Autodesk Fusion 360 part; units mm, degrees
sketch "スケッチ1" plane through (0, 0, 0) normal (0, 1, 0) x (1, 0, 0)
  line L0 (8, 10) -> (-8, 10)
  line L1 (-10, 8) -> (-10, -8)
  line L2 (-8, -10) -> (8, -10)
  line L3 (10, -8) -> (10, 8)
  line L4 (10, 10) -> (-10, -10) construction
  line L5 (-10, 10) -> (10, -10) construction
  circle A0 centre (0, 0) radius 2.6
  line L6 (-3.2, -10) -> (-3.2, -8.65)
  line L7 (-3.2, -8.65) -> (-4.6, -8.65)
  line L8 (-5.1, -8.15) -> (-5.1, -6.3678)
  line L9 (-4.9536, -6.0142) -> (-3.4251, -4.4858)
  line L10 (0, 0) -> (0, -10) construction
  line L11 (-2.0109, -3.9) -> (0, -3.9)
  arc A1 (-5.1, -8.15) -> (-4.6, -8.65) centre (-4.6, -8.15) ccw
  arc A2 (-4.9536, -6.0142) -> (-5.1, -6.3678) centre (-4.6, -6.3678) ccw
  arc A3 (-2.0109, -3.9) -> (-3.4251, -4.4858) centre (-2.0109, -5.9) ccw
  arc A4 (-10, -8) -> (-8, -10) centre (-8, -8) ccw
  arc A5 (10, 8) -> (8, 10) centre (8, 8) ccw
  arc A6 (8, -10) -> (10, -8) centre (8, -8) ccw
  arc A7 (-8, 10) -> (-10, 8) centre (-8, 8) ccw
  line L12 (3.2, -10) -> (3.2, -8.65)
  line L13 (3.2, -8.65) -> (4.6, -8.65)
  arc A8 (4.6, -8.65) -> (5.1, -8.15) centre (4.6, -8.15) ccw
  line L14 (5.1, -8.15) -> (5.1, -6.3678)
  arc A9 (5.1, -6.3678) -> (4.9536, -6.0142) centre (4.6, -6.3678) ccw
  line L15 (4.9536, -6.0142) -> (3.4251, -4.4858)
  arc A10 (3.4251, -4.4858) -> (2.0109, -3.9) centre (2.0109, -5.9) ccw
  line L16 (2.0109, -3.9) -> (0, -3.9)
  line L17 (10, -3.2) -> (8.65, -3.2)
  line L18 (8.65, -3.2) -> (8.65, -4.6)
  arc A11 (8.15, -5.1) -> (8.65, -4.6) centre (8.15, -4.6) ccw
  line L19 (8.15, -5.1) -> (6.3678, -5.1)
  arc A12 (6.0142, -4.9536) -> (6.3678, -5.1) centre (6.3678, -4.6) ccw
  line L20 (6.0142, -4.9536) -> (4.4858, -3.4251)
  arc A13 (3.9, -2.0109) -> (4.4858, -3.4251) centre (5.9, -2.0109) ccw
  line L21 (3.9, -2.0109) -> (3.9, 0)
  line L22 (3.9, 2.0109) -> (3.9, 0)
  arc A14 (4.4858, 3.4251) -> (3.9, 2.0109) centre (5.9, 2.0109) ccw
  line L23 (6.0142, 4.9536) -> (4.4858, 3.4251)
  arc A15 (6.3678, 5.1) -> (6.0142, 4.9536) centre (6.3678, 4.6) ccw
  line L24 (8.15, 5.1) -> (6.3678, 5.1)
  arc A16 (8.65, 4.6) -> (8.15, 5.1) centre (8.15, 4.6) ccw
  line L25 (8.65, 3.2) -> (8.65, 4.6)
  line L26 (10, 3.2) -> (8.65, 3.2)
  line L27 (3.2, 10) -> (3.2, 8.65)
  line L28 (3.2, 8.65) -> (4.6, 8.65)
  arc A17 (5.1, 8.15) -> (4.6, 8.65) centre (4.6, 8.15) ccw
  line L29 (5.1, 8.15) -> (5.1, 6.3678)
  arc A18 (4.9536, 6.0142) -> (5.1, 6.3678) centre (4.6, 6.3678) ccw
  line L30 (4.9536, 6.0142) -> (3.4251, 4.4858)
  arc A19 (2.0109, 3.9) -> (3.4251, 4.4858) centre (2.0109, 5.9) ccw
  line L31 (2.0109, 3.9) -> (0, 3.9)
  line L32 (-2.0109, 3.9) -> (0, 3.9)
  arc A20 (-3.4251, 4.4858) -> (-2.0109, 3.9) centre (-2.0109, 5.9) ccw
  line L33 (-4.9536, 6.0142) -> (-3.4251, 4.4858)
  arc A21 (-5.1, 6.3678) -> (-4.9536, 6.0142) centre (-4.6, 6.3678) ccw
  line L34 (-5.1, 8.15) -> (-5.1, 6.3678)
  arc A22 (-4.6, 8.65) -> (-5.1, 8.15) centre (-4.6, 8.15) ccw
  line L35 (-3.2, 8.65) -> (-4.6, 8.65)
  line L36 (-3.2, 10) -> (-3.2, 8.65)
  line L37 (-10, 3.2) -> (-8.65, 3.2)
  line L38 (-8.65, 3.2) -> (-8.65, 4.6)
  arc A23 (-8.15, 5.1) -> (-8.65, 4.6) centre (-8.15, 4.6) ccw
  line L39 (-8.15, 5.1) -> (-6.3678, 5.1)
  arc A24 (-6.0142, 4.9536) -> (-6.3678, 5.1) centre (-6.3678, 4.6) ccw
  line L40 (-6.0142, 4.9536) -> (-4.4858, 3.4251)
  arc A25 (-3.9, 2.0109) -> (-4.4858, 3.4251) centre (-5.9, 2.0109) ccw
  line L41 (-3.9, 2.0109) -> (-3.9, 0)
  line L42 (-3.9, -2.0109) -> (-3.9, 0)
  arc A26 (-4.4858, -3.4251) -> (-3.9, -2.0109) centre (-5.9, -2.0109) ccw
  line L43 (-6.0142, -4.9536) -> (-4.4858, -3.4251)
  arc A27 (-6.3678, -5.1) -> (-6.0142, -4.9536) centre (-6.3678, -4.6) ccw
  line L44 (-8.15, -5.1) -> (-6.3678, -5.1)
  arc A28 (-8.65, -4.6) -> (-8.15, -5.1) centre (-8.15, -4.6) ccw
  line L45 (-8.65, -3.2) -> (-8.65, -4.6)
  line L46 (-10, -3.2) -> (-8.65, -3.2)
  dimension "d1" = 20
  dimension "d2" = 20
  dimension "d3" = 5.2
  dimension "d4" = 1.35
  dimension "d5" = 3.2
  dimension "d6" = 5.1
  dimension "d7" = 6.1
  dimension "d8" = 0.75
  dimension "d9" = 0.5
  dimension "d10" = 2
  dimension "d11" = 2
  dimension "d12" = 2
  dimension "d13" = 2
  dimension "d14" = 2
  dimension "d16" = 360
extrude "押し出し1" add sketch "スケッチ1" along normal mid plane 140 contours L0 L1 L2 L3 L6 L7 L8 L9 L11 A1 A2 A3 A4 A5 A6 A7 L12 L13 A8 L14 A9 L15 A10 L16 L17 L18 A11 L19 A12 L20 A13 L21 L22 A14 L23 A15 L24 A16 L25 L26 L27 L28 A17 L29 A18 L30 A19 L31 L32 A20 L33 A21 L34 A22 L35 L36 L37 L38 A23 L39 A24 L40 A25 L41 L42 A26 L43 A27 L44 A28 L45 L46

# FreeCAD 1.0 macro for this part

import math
import FreeCAD as App
import Part
import Sketcher
Q = App.Units.Quantity

doc = App.newDocument("Part")
body = doc.addObject("PartDesign::Body", "Body")

# Sketch on XZ plane
sketch1 = body.newObject("Sketcher::SketchObject", "Sketch")
sketch1.AttachmentSupport = (doc.getObject("XZ_Plane"), [""])
sketch1.MapMode = "FlatFace"
sketch1.addGeometry([
    Part.ArcOfCircle(Part.Circle(App.Vector(8, -8, 0), App.Vector(0, 0, 1), 2), math.radians(-90), math.radians(0)),  # 0
    Part.LineSegment(App.Vector(8, -10, 0), App.Vector(3.2, -10, 0)),  # 1
    Part.LineSegment(App.Vector(3.2, -10, 0), App.Vector(3.2, -8.65, 0)),  # 2
    Part.LineSegment(App.Vector(3.2, -8.65, 0), App.Vector(4.6, -8.65, 0)),  # 3
    Part.ArcOfCircle(Part.Circle(App.Vector(4.6, -8.15, 0), App.Vector(0, 0, 1), 0.5), math.radians(-90), math.radians(0)),  # 4
    Part.LineSegment(App.Vector(5.1, -8.15, 0), App.Vector(5.1, -6.37, 0)),  # 5
    Part.ArcOfCircle(Part.Circle(App.Vector(4.6, -6.37, 0), App.Vector(0, 0, 1), 0.5), math.radians(0), math.radians(45)),  # 6
    Part.LineSegment(App.Vector(4.95, -6.01, 0), App.Vector(3.43, -4.49, 0)),  # 7
    Part.ArcOfCircle(Part.Circle(App.Vector(2.01, -5.9, 0), App.Vector(0, 0, 1), 2), math.radians(45), math.radians(90)),  # 8
    Part.LineSegment(App.Vector(2.01, -3.9, 0), App.Vector(-2.01, -3.9, 0)),  # 9
    Part.ArcOfCircle(Part.Circle(App.Vector(-2.01, -5.9, 0), App.Vector(0, 0, 1), 2), math.radians(90), math.radians(135)),  # 10
    Part.LineSegment(App.Vector(-3.43, -4.49, 0), App.Vector(-4.95, -6.01, 0)),  # 11
    Part.ArcOfCircle(Part.Circle(App.Vector(-4.6, -6.37, 0), App.Vector(0, 0, 1), 0.5), math.radians(135), math.radians(180)),  # 12
    Part.LineSegment(App.Vector(-5.1, -6.37, 0), App.Vector(-5.1, -8.15, 0)),  # 13
    Part.ArcOfCircle(Part.Circle(App.Vector(-4.6, -8.15, 0), App.Vector(0, 0, 1), 0.5), math.radians(180), math.radians(270)),  # 14
    Part.LineSegment(App.Vector(-4.6, -8.65, 0), App.Vector(-3.2, -8.65, 0)),  # 15
    Part.LineSegment(App.Vector(-3.2, -8.65, 0), App.Vector(-3.2, -10, 0)),  # 16
    Part.LineSegment(App.Vector(-3.2, -10, 0), App.Vector(-8, -10, 0)),  # 17
    Part.ArcOfCircle(Part.Circle(App.Vector(-8, -8, 0), App.Vector(0, 0, 1), 2), math.radians(180), math.radians(270)),  # 18
    Part.LineSegment(App.Vector(-10, -8, 0), App.Vector(-10, -3.2, 0)),  # 19
    Part.LineSegment(App.Vector(-10, -3.2, 0), App.Vector(-8.65, -3.2, 0)),  # 20
    Part.LineSegment(App.Vector(-8.65, -3.2, 0), App.Vector(-8.65, -4.6, 0)),  # 21
    Part.ArcOfCircle(Part.Circle(App.Vector(-8.15, -4.6, 0), App.Vector(0, 0, 1), 0.5), math.radians(180), math.radians(270)),  # 22
    Part.LineSegment(App.Vector(-8.15, -5.1, 0), App.Vector(-6.37, -5.1, 0)),  # 23
    Part.ArcOfCircle(Part.Circle(App.Vector(-6.37, -4.6, 0), App.Vector(0, 0, 1), 0.5), math.radians(-90), math.radians(-45)),  # 24
    Part.LineSegment(App.Vector(-6.01, -4.95, 0), App.Vector(-4.49, -3.43, 0)),  # 25
    Part.ArcOfCircle(Part.Circle(App.Vector(-5.9, -2.01, 0), App.Vector(0, 0, 1), 2), math.radians(-45), math.radians(0)),  # 26
    Part.LineSegment(App.Vector(-3.9, -2.01, 0), App.Vector(-3.9, 2.01, 0)),  # 27
    Part.ArcOfCircle(Part.Circle(App.Vector(-5.9, 2.01, 0), App.Vector(0, 0, 1), 2), math.radians(0), math.radians(45)),  # 28
    Part.LineSegment(App.Vector(-4.49, 3.43, 0), App.Vector(-6.01, 4.95, 0)),  # 29
    Part.ArcOfCircle(Part.Circle(App.Vector(-6.37, 4.6, 0), App.Vector(0, 0, 1), 0.5), math.radians(45), math.radians(90)),  # 30
    Part.LineSegment(App.Vector(-6.37, 5.1, 0), App.Vector(-8.15, 5.1, 0)),  # 31
    Part.ArcOfCircle(Part.Circle(App.Vector(-8.15, 4.6, 0), App.Vector(0, 0, 1), 0.5), math.radians(90), math.radians(180)),  # 32
    Part.LineSegment(App.Vector(-8.65, 4.6, 0), App.Vector(-8.65, 3.2, 0)),  # 33
    Part.LineSegment(App.Vector(-8.65, 3.2, 0), App.Vector(-10, 3.2, 0)),  # 34
    Part.LineSegment(App.Vector(-10, 3.2, 0), App.Vector(-10, 8, 0)),  # 35
    Part.ArcOfCircle(Part.Circle(App.Vector(-8, 8, 0), App.Vector(0, 0, 1), 2), math.radians(90), math.radians(180)),  # 36
    Part.LineSegment(App.Vector(-8, 10, 0), App.Vector(-3.2, 10, 0)),  # 37
    Part.LineSegment(App.Vector(-3.2, 10, 0), App.Vector(-3.2, 8.65, 0)),  # 38
    Part.LineSegment(App.Vector(-3.2, 8.65, 0), App.Vector(-4.6, 8.65, 0)),  # 39
    Part.ArcOfCircle(Part.Circle(App.Vector(-4.6, 8.15, 0), App.Vector(0, 0, 1), 0.5), math.radians(90), math.radians(180)),  # 40
    Part.LineSegment(App.Vector(-5.1, 8.15, 0), App.Vector(-5.1, 6.37, 0)),  # 41
    Part.ArcOfCircle(Part.Circle(App.Vector(-4.6, 6.37, 0), App.Vector(0, 0, 1), 0.5), math.radians(180), math.radians(225)),  # 42
    Part.LineSegment(App.Vector(-4.95, 6.01, 0), App.Vector(-3.43, 4.49, 0)),  # 43
    Part.ArcOfCircle(Part.Circle(App.Vector(-2.01, 5.9, 0), App.Vector(0, 0, 1), 2), math.radians(-135), math.radians(-90)),  # 44
    Part.LineSegment(App.Vector(-2.01, 3.9, 0), App.Vector(2.01, 3.9, 0)),  # 45
    Part.ArcOfCircle(Part.Circle(App.Vector(2.01, 5.9, 0), App.Vector(0, 0, 1), 2), math.radians(-90), math.radians(-45)),  # 46
    Part.LineSegment(App.Vector(3.43, 4.49, 0), App.Vector(4.95, 6.01, 0)),  # 47
    Part.ArcOfCircle(Part.Circle(App.Vector(4.6, 6.37, 0), App.Vector(0, 0, 1), 0.5), math.radians(-45), math.radians(0)),  # 48
    Part.LineSegment(App.Vector(5.1, 6.37, 0), App.Vector(5.1, 8.15, 0)),  # 49
    Part.ArcOfCircle(Part.Circle(App.Vector(4.6, 8.15, 0), App.Vector(0, 0, 1), 0.5), math.radians(0), math.radians(90)),  # 50
    Part.LineSegment(App.Vector(4.6, 8.65, 0), App.Vector(3.2, 8.65, 0)),  # 51
    Part.LineSegment(App.Vector(3.2, 8.65, 0), App.Vector(3.2, 10, 0)),  # 52
    Part.LineSegment(App.Vector(3.2, 10, 0), App.Vector(8, 10, 0)),  # 53
    Part.ArcOfCircle(Part.Circle(App.Vector(8, 8, 0), App.Vector(0, 0, 1), 2), math.radians(0), math.radians(90)),  # 54
    Part.LineSegment(App.Vector(10, 8, 0), App.Vector(10, 3.2, 0)),  # 55
    Part.LineSegment(App.Vector(10, 3.2, 0), App.Vector(8.65, 3.2, 0)),  # 56
    Part.LineSegment(App.Vector(8.65, 3.2, 0), App.Vector(8.65, 4.6, 0)),  # 57
    Part.ArcOfCircle(Part.Circle(App.Vector(8.15, 4.6, 0), App.Vector(0, 0, 1), 0.5), math.radians(0), math.radians(90)),  # 58
    Part.LineSegment(App.Vector(8.15, 5.1, 0), App.Vector(6.37, 5.1, 0)),  # 59
    Part.ArcOfCircle(Part.Circle(App.Vector(6.37, 4.6, 0), App.Vector(0, 0, 1), 0.5), math.radians(90), math.radians(135)),  # 60
    Part.LineSegment(App.Vector(6.01, 4.95, 0), App.Vector(4.49, 3.43, 0)),  # 61
    Part.ArcOfCircle(Part.Circle(App.Vector(5.9, 2.01, 0), App.Vector(0, 0, 1), 2), math.radians(135), math.radians(180)),  # 62
    Part.LineSegment(App.Vector(3.9, 2.01, 0), App.Vector(3.9, -2.01, 0)),  # 63
    Part.ArcOfCircle(Part.Circle(App.Vector(5.9, -2.01, 0), App.Vector(0, 0, 1), 2), math.radians(180), math.radians(225)),  # 64
    Part.LineSegment(App.Vector(4.49, -3.43, 0), App.Vector(6.01, -4.95, 0)),  # 65
    Part.ArcOfCircle(Part.Circle(App.Vector(6.37, -4.6, 0), App.Vector(0, 0, 1), 0.5), math.radians(-135), math.radians(-90)),  # 66
    Part.LineSegment(App.Vector(6.37, -5.1, 0), App.Vector(8.15, -5.1, 0)),  # 67
    Part.ArcOfCircle(Part.Circle(App.Vector(8.15, -4.6, 0), App.Vector(0, 0, 1), 0.5), math.radians(-90), math.radians(0)),  # 68
    Part.LineSegment(App.Vector(8.65, -4.6, 0), App.Vector(8.65, -3.2, 0)),  # 69
    Part.LineSegment(App.Vector(8.65, -3.2, 0), App.Vector(10, -3.2, 0)),  # 70
    Part.LineSegment(App.Vector(10, -3.2, 0), App.Vector(10, -8, 0)),  # 71
    Part.Circle(App.Vector(0, 0, 0), App.Vector(0, 0, 1), 2.6),  # 72
], False)
sketch1.addConstraint([
    Sketcher.Constraint("Tangent", 0, 1, 1, 1),
    Sketcher.Constraint("Coincident", 1, 2, 2, 1),
    Sketcher.Constraint("Coincident", 2, 2, 3, 1),
    Sketcher.Constraint("Tangent", 3, 2, 4, 1),
    Sketcher.Constraint("Tangent", 4, 2, 5, 1),
    Sketcher.Constraint("Tangent", 5, 2, 6, 1),
    Sketcher.Constraint("Tangent", 6, 2, 7, 1),
    Sketcher.Constraint("Tangent", 7, 2, 8, 1),
    Sketcher.Constraint("Tangent", 8, 2, 9, 1),
    Sketcher.Constraint("Tangent", 9, 2, 10, 1),
    Sketcher.Constraint("Tangent", 10, 2, 11, 1),
    Sketcher.Constraint("Tangent", 11, 2, 12, 1),
    Sketcher.Constraint("Tangent", 12, 2, 13, 1),
    Sketcher.Constraint("Tangent", 13, 2, 14, 1),
    Sketcher.Constraint("Tangent", 14, 2, 15, 1),
    Sketcher.Constraint("Coincident", 15, 2, 16, 1),
    Sketcher.Constraint("Coincident", 16, 2, 17, 1),
    Sketcher.Constraint("Tangent", 17, 2, 18, 2),
    Sketcher.Constraint("Tangent", 18, 1, 19, 1),
    Sketcher.Constraint("Coincident", 19, 2, 20, 1),
    Sketcher.Constraint("Coincident", 20, 2, 21, 1),
    Sketcher.Constraint("Tangent", 21, 2, 22, 1),
    Sketcher.Constraint("Tangent", 22, 2, 23, 1),
    Sketcher.Constraint("Tangent", 23, 2, 24, 1),
    Sketcher.Constraint("Tangent", 24, 2, 25, 1),
    Sketcher.Constraint("Tangent", 25, 2, 26, 1),
    Sketcher.Constraint("Tangent", 26, 2, 27, 1),
    Sketcher.Constraint("Tangent", 27, 2, 28, 1),
    Sketcher.Constraint("Tangent", 28, 2, 29, 1),
    Sketcher.Constraint("Tangent", 29, 2, 30, 1),
    Sketcher.Constraint("Tangent", 30, 2, 31, 1),
    Sketcher.Constraint("Tangent", 31, 2, 32, 1),
    Sketcher.Constraint("Tangent", 32, 2, 33, 1),
    Sketcher.Constraint("Coincident", 33, 2, 34, 1),
    Sketcher.Constraint("Coincident", 34, 2, 35, 1),
    Sketcher.Constraint("Tangent", 35, 2, 36, 2),
    Sketcher.Constraint("Tangent", 36, 1, 37, 1),
    Sketcher.Constraint("Coincident", 37, 2, 38, 1),
    Sketcher.Constraint("Coincident", 38, 2, 39, 1),
    Sketcher.Constraint("Tangent", 39, 2, 40, 1),
    Sketcher.Constraint("Tangent", 40, 2, 41, 1),
    Sketcher.Constraint("Tangent", 41, 2, 42, 1),
    Sketcher.Constraint("Tangent", 42, 2, 43, 1),
    Sketcher.Constraint("Tangent", 43, 2, 44, 1),
    Sketcher.Constraint("Tangent", 44, 2, 45, 1),
    Sketcher.Constraint("Tangent", 45, 2, 46, 1),
    Sketcher.Constraint("Tangent", 46, 2, 47, 1),
    Sketcher.Constraint("Tangent", 47, 2, 48, 1),
    Sketcher.Constraint("Tangent", 48, 2, 49, 1),
    Sketcher.Constraint("Tangent", 49, 2, 50, 1),
    Sketcher.Constraint("Tangent", 50, 2, 51, 1),
    Sketcher.Constraint("Coincident", 51, 2, 52, 1),
    Sketcher.Constraint("Coincident", 52, 2, 53, 1),
    Sketcher.Constraint("Tangent", 53, 2, 54, 2),
    Sketcher.Constraint("Tangent", 54, 1, 55, 1),
    Sketcher.Constraint("Coincident", 55, 2, 56, 1),
    Sketcher.Constraint("Coincident", 56, 2, 57, 1),
    Sketcher.Constraint("Tangent", 57, 2, 58, 1),
    Sketcher.Constraint("Tangent", 58, 2, 59, 1),
    Sketcher.Constraint("Tangent", 59, 2, 60, 1),
    Sketcher.Constraint("Tangent", 60, 2, 61, 1),
    Sketcher.Constraint("Tangent", 61, 2, 62, 1),
    Sketcher.Constraint("Tangent", 62, 2, 63, 1),
    Sketcher.Constraint("Tangent", 63, 2, 64, 1),
    Sketcher.Constraint("Tangent", 64, 2, 65, 1),
    Sketcher.Constraint("Tangent", 65, 2, 66, 1),
    Sketcher.Constraint("Tangent", 66, 2, 67, 1),
    Sketcher.Constraint("Tangent", 67, 2, 68, 1),
    Sketcher.Constraint("Tangent", 68, 2, 69, 1),
    Sketcher.Constraint("Coincident", 69, 2, 70, 1),
    Sketcher.Constraint("Coincident", 70, 2, 71, 1),
    Sketcher.Constraint("Tangent", 71, 2, 0, 2),
    Sketcher.Constraint("Horizontal", 1),
    Sketcher.Constraint("Vertical", 2),
    Sketcher.Constraint("Horizontal", 3),
    Sketcher.Constraint("Vertical", 5),
    Sketcher.Constraint("Horizontal", 9),
    Sketcher.Constraint("Vertical", 13),
    Sketcher.Constraint("Horizontal", 15),
    Sketcher.Constraint("Vertical", 16),
    Sketcher.Constraint("Horizontal", 17),
    Sketcher.Constraint("Vertical", 19),
    Sketcher.Constraint("Horizontal", 20),
    Sketcher.Constraint("Vertical", 21),
    Sketcher.Constraint("Horizontal", 23),
    Sketcher.Constraint("Vertical", 27),
    Sketcher.Constraint("Horizontal", 31),
    Sketcher.Constraint("Vertical", 33),
    Sketcher.Constraint("Horizontal", 34),
    Sketcher.Constraint("Vertical", 35),
    Sketcher.Constraint("Horizontal", 37),
    Sketcher.Constraint("Vertical", 38),
    Sketcher.Constraint("Horizontal", 39),
    Sketcher.Constraint("Vertical", 41),
    Sketcher.Constraint("Horizontal", 45),
    Sketcher.Constraint("Vertical", 49),
    Sketcher.Constraint("Horizontal", 51),
    Sketcher.Constraint("Vertical", 52),
    Sketcher.Constraint("Horizontal", 53),
    Sketcher.Constraint("Vertical", 55),
    Sketcher.Constraint("Horizontal", 56),
    Sketcher.Constraint("Vertical", 57),
    Sketcher.Constraint("Horizontal", 59),
    Sketcher.Constraint("Vertical", 63),
    Sketcher.Constraint("Horizontal", 67),
    Sketcher.Constraint("Vertical", 69),
    Sketcher.Constraint("Horizontal", 70),
    Sketcher.Constraint("Vertical", 71),
    Sketcher.Constraint("Coincident", 72, 3, -1, 1),
    Sketcher.Constraint("Equal", 4, 6),
    Sketcher.Constraint("Equal", 0, 8),
    Sketcher.Constraint("Equal", 8, 10),
    Sketcher.Constraint("Equal", 6, 12),
    Sketcher.Constraint("Equal", 12, 14),
    Sketcher.Constraint("Equal", 10, 18),
    Sketcher.Constraint("Equal", 14, 22),
    Sketcher.Constraint("Equal", 22, 24),
    Sketcher.Constraint("Equal", 18, 26),
    Sketcher.Constraint("Equal", 26, 28),
    Sketcher.Constraint("Equal", 24, 30),
    Sketcher.Constraint("Equal", 30, 32),
    Sketcher.Constraint("Equal", 28, 36),
    Sketcher.Constraint("Equal", 32, 40),
    Sketcher.Constraint("Equal", 40, 42),
    Sketcher.Constraint("Equal", 36, 44),
    Sketcher.Constraint("Equal", 44, 46),
    Sketcher.Constraint("Equal", 42, 48),
    Sketcher.Constraint("Equal", 48, 50),
    Sketcher.Constraint("Equal", 46, 54),
    Sketcher.Constraint("Equal", 50, 58),
    Sketcher.Constraint("Equal", 58, 60),
    Sketcher.Constraint("Equal", 54, 62),
    Sketcher.Constraint("Equal", 62, 64),
    Sketcher.Constraint("Equal", 60, 66),
    Sketcher.Constraint("Equal", 66, 68),
    Sketcher.Constraint("Symmetric", 0, 3, 36, 3, -1, 1),
    Sketcher.Constraint("Symmetric", 4, 3, 40, 3, -1, 1),
    Sketcher.Constraint("Symmetric", 8, 3, 44, 3, -1, 1),
    Sketcher.Constraint("Symmetric", 12, 3, 48, 3, -1, 1),
    Sketcher.Constraint("Symmetric", 18, 3, 54, 3, -1, 1),
    Sketcher.Constraint("Symmetric", 22, 3, 58, 3, -1, 1),
    Sketcher.Constraint("Symmetric", 26, 3, 62, 3, -1, 1),
    Sketcher.Constraint("Symmetric", 30, 3, 66, 3, -1, 1),
    Sketcher.Constraint("Symmetric", 15, 2, 51, 2, -1, 1),
    Sketcher.Constraint("Symmetric", 33, 2, 69, 2, -1, 1),
    Sketcher.Constraint("Symmetric", 6, 3, 12, 3, -2),
    Sketcher.Constraint("Symmetric", 0, 3, 18, 3, -2),
    Sketcher.Constraint("Symmetric", 32, 3, 58, 3, -2),
    Sketcher.Constraint("Symmetric", 2, 2, 15, 2, -2),
    Sketcher.Constraint("Symmetric", 43, 2, 46, 2, -2),
    Sketcher.Constraint("Symmetric", 29, 2, 60, 2, -2),
    Sketcher.Constraint("Symmetric", 25, 2, 64, 2, -2),
    Sketcher.Constraint("Perpendicular", 7, 11),
    Sketcher.Constraint("Parallel", 11, 25),
    Sketcher.Constraint("Perpendicular", 25, 29),
    Sketcher.Constraint("Horizontal", 34, 2, 55, 2),
    Sketcher.Constraint("Horizontal", 20, 2, 69, 2),
    Sketcher.Constraint("Vertical", 16, 2, 37, 2),
    Sketcher.Constraint("Equal", 70, 2),
    Sketcher.Constraint("Equal", 67, 5),
    Sketcher.Constraint("Equal", 53, 19),
    Sketcher.Constraint("Equal", 51, 21),
    Sketcher.Constraint("Equal", 45, 27),
    Sketcher.Constraint("Equal", 11, 25),
    Sketcher.Constraint("Radius", 0, Q("2 mm")),
    Sketcher.Constraint("Diameter", 72, Q("5.2 mm")),
    Sketcher.Constraint("Radius", 4, Q("0.5 mm")),
    Sketcher.Constraint("DistanceX", 20, 1, 20, 2, Q("1.35 mm")),
    Sketcher.Constraint("DistanceX", -1, 1, 1, 2, Q("3.2 mm")),
    Sketcher.Constraint("DistanceX", -1, 1, 4, 2, Q("5.1 mm")),
    Sketcher.Constraint("DistanceX", 1, 2, 1, 1, Q("4.8 mm")),
    Sketcher.Constraint("DistanceY", 8, 3, -1, 1, Q("5.9 mm")),
    Sketcher.Constraint("DistanceX", 9, 2, 9, 1, Q("4.0218 mm")),
])
pad1 = body.newObject("PartDesign::Pad", "Pad")
pad1.Profile = sketch1
pad1.Length = 140
pad1.Midplane = True

doc.recompute()
